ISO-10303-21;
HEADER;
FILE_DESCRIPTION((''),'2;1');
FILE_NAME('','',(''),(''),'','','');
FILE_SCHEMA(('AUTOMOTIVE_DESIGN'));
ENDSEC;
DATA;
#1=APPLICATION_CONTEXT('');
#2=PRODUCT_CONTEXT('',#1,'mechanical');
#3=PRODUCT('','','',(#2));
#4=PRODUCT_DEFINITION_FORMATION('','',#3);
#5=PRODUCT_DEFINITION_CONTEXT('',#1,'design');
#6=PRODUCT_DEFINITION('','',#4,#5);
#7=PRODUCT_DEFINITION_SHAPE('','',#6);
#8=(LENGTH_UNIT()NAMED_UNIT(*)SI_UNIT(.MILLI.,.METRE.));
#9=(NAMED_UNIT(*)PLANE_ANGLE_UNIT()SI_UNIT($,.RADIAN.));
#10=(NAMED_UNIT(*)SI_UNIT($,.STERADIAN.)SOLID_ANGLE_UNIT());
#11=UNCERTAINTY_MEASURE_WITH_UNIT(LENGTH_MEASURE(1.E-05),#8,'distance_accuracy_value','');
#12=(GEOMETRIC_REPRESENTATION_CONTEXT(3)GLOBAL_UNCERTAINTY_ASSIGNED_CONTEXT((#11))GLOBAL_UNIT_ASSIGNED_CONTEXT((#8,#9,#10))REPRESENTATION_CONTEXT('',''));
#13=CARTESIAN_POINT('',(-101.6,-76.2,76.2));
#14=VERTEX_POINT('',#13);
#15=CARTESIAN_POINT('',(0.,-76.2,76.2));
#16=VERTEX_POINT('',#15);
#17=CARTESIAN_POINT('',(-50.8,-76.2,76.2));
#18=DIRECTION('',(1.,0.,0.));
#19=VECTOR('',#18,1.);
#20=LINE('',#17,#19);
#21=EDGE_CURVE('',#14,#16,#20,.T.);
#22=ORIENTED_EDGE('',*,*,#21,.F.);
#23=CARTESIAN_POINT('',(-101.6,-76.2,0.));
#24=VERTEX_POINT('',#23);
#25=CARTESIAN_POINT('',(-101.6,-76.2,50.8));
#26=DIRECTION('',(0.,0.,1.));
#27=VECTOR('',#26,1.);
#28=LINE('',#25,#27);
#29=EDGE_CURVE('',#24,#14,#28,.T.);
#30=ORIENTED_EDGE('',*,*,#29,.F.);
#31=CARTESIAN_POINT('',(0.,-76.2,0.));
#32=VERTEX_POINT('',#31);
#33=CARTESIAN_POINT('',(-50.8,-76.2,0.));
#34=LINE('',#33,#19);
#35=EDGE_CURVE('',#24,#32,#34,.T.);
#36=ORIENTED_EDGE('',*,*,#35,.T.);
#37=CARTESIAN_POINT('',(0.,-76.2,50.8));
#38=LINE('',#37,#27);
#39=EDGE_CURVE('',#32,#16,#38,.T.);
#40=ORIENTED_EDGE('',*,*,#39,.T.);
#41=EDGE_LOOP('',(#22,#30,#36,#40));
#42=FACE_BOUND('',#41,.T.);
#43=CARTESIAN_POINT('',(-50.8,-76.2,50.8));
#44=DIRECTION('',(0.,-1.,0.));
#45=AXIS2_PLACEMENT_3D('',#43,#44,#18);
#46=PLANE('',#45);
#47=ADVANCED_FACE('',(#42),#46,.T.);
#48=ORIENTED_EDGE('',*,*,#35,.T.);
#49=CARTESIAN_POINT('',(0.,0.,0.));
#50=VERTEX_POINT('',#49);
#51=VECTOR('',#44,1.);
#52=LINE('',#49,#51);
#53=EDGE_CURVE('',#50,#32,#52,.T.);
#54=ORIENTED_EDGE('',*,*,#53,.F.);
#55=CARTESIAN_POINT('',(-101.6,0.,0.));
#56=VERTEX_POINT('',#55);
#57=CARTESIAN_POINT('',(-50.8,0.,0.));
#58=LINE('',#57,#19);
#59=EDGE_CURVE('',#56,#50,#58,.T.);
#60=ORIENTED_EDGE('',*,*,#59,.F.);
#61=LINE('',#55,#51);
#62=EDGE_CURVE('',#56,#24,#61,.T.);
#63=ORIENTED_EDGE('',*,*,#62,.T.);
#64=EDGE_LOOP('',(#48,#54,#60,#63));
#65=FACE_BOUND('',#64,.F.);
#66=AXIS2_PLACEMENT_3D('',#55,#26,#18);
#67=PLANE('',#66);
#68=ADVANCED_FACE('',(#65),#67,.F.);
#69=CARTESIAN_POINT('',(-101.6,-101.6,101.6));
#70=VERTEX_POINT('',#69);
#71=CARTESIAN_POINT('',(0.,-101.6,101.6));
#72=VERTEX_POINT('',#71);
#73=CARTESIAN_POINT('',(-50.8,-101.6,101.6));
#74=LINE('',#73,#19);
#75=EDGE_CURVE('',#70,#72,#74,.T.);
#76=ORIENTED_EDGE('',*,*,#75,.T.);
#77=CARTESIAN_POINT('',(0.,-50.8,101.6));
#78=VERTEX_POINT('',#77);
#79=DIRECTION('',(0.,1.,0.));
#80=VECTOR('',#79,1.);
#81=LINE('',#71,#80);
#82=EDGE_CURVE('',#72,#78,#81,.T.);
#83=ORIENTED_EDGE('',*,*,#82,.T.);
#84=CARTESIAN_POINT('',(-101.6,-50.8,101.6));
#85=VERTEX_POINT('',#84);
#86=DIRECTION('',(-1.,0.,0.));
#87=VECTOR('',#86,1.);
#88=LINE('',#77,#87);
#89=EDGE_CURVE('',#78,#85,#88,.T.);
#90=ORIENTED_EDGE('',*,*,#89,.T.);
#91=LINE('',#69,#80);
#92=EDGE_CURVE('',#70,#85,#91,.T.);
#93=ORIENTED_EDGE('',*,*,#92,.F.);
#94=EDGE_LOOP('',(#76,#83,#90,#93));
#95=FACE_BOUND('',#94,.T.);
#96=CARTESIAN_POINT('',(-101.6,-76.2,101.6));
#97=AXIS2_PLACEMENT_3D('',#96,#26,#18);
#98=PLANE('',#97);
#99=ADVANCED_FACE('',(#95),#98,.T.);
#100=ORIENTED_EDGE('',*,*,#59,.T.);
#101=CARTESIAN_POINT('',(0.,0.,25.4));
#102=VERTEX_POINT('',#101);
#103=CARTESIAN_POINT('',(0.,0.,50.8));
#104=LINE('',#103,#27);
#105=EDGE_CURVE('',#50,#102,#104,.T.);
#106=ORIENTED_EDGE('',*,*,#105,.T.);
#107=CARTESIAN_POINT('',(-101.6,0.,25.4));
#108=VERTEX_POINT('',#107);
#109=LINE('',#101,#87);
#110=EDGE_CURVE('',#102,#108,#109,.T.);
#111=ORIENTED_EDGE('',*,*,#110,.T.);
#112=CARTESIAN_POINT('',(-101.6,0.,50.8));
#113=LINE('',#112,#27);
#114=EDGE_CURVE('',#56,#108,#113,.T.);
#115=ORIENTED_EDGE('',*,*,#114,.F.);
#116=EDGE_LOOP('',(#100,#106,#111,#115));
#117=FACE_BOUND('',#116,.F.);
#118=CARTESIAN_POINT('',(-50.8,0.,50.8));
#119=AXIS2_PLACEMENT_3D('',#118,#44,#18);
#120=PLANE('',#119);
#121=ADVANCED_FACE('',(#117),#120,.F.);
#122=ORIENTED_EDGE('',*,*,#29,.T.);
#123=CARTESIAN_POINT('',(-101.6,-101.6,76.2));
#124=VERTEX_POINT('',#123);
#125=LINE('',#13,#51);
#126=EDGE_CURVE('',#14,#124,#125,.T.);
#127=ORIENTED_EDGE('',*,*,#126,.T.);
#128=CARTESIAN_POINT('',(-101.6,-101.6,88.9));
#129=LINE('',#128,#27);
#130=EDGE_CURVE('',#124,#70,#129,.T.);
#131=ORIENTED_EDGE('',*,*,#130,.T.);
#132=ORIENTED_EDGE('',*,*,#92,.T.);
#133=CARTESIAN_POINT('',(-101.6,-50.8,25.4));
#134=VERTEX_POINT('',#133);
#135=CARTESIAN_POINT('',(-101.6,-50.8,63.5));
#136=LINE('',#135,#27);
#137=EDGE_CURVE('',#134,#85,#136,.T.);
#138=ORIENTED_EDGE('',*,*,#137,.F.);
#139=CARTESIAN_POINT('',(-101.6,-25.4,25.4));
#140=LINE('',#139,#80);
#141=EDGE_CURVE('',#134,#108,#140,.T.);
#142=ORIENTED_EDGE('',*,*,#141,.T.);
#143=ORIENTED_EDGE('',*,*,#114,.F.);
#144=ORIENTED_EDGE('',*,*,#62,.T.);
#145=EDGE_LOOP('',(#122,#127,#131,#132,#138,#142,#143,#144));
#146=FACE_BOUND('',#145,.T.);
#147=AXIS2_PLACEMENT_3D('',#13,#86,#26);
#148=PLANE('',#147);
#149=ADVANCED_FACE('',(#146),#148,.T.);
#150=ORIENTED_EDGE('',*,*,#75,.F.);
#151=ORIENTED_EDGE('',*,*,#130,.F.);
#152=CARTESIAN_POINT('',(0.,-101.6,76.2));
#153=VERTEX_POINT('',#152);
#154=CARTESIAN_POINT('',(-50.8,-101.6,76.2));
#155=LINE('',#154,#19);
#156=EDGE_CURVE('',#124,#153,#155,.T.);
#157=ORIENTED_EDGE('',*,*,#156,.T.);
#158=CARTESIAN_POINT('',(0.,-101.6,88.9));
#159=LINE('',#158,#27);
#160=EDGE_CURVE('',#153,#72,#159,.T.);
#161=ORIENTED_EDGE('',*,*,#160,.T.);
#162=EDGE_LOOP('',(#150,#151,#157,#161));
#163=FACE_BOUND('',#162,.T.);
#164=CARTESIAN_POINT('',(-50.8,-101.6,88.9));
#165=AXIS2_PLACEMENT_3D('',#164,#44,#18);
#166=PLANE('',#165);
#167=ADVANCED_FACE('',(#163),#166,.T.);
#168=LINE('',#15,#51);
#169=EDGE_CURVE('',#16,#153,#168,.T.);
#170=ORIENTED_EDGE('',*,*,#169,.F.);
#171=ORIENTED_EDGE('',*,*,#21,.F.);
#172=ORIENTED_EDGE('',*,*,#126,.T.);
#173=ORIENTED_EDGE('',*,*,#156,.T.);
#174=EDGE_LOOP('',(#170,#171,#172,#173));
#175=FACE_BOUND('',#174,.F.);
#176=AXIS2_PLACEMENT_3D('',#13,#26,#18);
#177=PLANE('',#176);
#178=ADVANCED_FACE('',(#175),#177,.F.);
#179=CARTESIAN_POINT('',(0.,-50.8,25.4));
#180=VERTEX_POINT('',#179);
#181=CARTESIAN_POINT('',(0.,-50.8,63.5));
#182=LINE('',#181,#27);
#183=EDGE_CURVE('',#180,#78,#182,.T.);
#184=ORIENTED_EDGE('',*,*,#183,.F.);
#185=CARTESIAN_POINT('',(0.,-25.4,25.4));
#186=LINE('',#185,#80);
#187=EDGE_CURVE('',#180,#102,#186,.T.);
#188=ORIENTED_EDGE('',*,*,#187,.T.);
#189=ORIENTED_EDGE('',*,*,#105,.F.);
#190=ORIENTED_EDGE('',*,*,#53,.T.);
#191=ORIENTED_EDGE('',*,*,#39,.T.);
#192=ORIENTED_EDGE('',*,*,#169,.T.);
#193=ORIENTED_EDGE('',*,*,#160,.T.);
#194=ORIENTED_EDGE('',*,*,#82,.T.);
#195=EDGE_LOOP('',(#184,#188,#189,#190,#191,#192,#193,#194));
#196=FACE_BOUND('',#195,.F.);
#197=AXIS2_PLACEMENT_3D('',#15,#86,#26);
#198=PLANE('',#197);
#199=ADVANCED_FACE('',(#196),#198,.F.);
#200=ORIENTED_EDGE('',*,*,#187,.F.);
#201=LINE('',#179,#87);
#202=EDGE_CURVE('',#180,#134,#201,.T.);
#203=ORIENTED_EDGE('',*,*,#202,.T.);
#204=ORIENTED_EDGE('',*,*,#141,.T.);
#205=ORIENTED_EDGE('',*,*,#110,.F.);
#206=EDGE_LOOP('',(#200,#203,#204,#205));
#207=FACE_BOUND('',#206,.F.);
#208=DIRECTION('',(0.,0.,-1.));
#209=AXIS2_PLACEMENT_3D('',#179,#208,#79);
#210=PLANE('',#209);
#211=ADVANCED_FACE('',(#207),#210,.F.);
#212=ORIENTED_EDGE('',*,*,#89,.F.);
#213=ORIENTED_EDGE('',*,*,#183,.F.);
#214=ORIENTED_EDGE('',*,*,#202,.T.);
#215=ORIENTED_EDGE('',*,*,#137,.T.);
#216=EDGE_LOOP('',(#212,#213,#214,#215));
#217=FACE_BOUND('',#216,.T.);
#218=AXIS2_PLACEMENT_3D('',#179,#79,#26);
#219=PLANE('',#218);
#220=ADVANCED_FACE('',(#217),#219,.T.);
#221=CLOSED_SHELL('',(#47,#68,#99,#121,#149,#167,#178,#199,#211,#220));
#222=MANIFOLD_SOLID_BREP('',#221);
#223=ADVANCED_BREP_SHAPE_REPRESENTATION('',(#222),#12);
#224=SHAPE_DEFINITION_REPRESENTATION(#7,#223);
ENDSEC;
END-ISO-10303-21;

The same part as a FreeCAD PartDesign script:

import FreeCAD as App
import Part
import Sketcher
from FreeCAD import Vector
Q = App.Units.Quantity


def add_polygon(sketch, points):
    """Adds a closed chain of lines whose ends are joined by coincident constraints."""
    first, n = sketch.GeometryCount, len(points)
    for a, b in zip(points, points[1:] + points[:1]):
        sketch.addGeometry(Part.LineSegment(App.Vector(*a, 0), App.Vector(*b, 0)), False)
    for i in range(n):
        sketch.addConstraint(Sketcher.Constraint("Coincident", first + i, 2, first + (i + 1) % n, 1))

doc = App.newDocument("Part")
params = doc.addObject("Spreadsheet::Sheet", "Params")
for row, (alias, value) in enumerate([
    ("sketch1_width", "4 in"),
    ("pad1_length", "3 in"),
    ("sketch2_width", "4 in"),
    ("sketch2_height", "1 in"),
    ("pad2_length", "1 in"),
    ("sketch3_width", "2 in"),
    ("sketch3_height", "3 in"),
    ("pocket1_length", "4 in"),
], start=1):
    params.set(f"A{row}", alias)
    params.set(f"B{row}", "=" + value)
    params.setAlias(f"B{row}", alias)

body = doc.addObject("PartDesign::Body", "Body")

sketch1 = doc.addObject("Sketcher::SketchObject", "Sketch")
body.addObject(sketch1)
sketch1.AttachmentSupport = (doc.XZ_Plane, [""])
sketch1.MapMode = "FlatFace"
add_polygon(sketch1, [(-102, 102), (-102, 0), (0, 0), (0, 102)])
sketch1.addConstraint(Sketcher.Constraint("Vertical", 0))
sketch1.addConstraint(Sketcher.Constraint("Horizontal", 1))
sketch1.addConstraint(Sketcher.Constraint("Vertical", 2))
sketch1.addConstraint(Sketcher.Constraint("Horizontal", 3))
sketch1.addConstraint(Sketcher.Constraint("Coincident", 1, 2, -1, 1))
sketch1.addConstraint(Sketcher.Constraint("Equal", 3, 0))
sketch1.addConstraint(Sketcher.Constraint("DistanceX", 1, 1, 1, 2, Q("4 in")))
sketch1.setExpression("Constraints[10]", "Params.sketch1_width")
pad1 = doc.addObject("PartDesign::Pad", "Pad")
body.addObject(pad1)
pad1.Profile = sketch1
pad1.setExpression("Length", "Params.pad1_length")

sketch2 = doc.addObject("Sketcher::SketchObject", "Sketch001")
body.addObject(sketch2)
sketch2.AttachmentSupport = (doc.XZ_Plane, [""])
sketch2.MapMode = "FlatFace"
sketch2.AttachmentOffset = App.Placement(Vector(0, 0, 3 * 25.4), App.Rotation())
add_polygon(sketch2, [(-102, 102), (-102, 76), (0, 76), (0, 102)])
sketch2.addConstraint(Sketcher.Constraint("Vertical", 0))
sketch2.addConstraint(Sketcher.Constraint("Horizontal", 1))
sketch2.addConstraint(Sketcher.Constraint("Vertical", 2))
sketch2.addConstraint(Sketcher.Constraint("Horizontal", 3))
sketch2.addConstraint(Sketcher.Constraint("PointOnObject", 1, 2, -2))
sketch2.addConstraint(Sketcher.Constraint("DistanceX", 1, 1, 1, 2, Q("4 in")))
sketch2.addConstraint(Sketcher.Constraint("DistanceY", 0, 2, 0, 1, Q("1 in")))
sketch2.addConstraint(Sketcher.Constraint("DistanceY", -1, 1, 0, 2, Q("3 in")))
sketch2.setExpression("Constraints[9]", "Params.sketch2_width")
sketch2.setExpression("Constraints[10]", "Params.sketch2_height")
pad2 = doc.addObject("PartDesign::Pad", "Pad001")
body.addObject(pad2)
pad2.Profile = sketch2
pad2.setExpression("Length", "Params.pad2_length")

sketch3 = doc.addObject("Sketcher::SketchObject", "Sketch002")
body.addObject(sketch3)
sketch3.AttachmentSupport = (doc.YZ_Plane, [""])
sketch3.MapMode = "FlatFace"
add_polygon(sketch3, [(-51, 102), (-51, 25), (0, 25), (0, 102)])
sketch3.addConstraint(Sketcher.Constraint("Vertical", 0))
sketch3.addConstraint(Sketcher.Constraint("Horizontal", 1))
sketch3.addConstraint(Sketcher.Constraint("Vertical", 2))
sketch3.addConstraint(Sketcher.Constraint("Horizontal", 3))
sketch3.addConstraint(Sketcher.Constraint("PointOnObject", 1, 2, -2))
sketch3.addConstraint(Sketcher.Constraint("DistanceX", 1, 1, 1, 2, Q("2 in")))
sketch3.addConstraint(Sketcher.Constraint("DistanceY", 0, 2, 0, 1, Q("3 in")))
sketch3.addConstraint(Sketcher.Constraint("DistanceY", -1, 1, 0, 2, Q("1 in")))
sketch3.setExpression("Constraints[9]", "Params.sketch3_width")
sketch3.setExpression("Constraints[10]", "Params.sketch3_height")
pocket1 = doc.addObject("PartDesign::Pocket", "Pocket")
body.addObject(pocket1)
pocket1.Profile = sketch3
pocket1.setExpression("Length", "Params.pocket1_length")

doc.recompute()
